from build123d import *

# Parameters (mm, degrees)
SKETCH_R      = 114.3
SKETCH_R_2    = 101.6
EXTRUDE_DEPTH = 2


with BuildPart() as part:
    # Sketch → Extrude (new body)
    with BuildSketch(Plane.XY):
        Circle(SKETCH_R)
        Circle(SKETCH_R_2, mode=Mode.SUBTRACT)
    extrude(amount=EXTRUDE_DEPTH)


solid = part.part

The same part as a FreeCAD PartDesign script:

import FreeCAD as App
import Part
import Sketcher

V = App.Vector
Q = App.Units.Quantity

doc = App.newDocument("Part")
body = doc.addObject("PartDesign::Body", "Body")

sketch1 = doc.addObject("Sketcher::SketchObject", "Sketch")
body.addObject(sketch1)
sketch1.AttachmentSupport = (doc.XY_Plane, [""])
sketch1.MapMode = "FlatFace"
sketch1.addGeometry([
    Part.Circle(V(0, 0, 0), V(0, 0, 1), 114),
    Part.Circle(V(0, 0, 0), V(0, 0, 1), 102),
], False)
sketch1.addConstraint([
    Sketcher.Constraint("Coincident", 0, 3, -1, 1),
    Sketcher.Constraint("Coincident", 1, 3, -1, 1),
    Sketcher.Constraint("Diameter", 0, Q("9 in")),
    Sketcher.Constraint("Diameter", 1, Q("8 in")),
])
pad1 = doc.addObject("PartDesign::Pad", "Pad")
body.addObject(pad1)
pad1.Profile = sketch1
pad1.Length = 2

doc.recompute()
